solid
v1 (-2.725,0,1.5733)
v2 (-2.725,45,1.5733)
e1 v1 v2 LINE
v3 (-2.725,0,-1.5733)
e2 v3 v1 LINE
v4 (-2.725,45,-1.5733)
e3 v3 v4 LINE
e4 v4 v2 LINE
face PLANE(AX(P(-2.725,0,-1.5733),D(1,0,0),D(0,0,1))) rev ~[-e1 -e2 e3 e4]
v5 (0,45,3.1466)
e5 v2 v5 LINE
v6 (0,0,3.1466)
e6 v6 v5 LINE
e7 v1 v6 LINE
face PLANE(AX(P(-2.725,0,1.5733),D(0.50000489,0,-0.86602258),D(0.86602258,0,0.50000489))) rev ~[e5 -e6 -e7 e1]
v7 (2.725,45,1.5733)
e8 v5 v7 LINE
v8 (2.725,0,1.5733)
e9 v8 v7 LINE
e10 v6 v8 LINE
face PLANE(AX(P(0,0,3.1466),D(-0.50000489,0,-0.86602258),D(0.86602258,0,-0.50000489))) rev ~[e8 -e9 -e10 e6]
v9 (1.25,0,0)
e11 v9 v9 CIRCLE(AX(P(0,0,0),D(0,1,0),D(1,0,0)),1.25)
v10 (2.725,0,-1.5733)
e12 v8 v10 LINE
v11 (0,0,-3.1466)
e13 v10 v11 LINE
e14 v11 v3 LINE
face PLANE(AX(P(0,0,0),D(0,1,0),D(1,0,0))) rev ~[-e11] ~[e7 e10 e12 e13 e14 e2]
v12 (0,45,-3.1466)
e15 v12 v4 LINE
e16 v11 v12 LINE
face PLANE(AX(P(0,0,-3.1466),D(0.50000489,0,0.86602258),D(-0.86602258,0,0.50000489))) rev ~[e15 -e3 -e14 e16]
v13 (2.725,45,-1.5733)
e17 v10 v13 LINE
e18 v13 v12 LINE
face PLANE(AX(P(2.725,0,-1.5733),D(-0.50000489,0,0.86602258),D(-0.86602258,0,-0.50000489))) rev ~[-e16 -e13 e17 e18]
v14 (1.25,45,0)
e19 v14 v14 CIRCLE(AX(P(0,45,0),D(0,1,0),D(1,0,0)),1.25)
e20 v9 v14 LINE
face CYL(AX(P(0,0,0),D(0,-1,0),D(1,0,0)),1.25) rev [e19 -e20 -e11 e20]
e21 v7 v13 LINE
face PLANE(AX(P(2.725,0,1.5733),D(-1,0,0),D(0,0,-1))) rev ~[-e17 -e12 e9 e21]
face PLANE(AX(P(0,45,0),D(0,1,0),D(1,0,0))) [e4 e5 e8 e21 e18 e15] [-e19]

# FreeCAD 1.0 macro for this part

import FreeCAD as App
import Part
import Sketcher
from FreeCAD import Vector
Q = App.Units.Quantity

doc = App.newDocument("Part")
body = doc.addObject("PartDesign::Body", "Body")

# Sketch on XZ plane
sketch1 = doc.addObject("Sketcher::SketchObject", "Sketch")
body.addObject(sketch1)
sketch1.AttachmentSupport = (doc.XZ_Plane, [""])
sketch1.MapMode = "FlatFace"
sketch1.addGeometry([
    Part.LineSegment(Vector(2.7, 1.6, 0), Vector(2.7, -1.6, 0)),  # 0
    Part.LineSegment(Vector(2.7, -1.6, 0), Vector(0, -3.1, 0)),  # 1
    Part.LineSegment(Vector(0, -3.1, 0), Vector(-2.7, -1.6, 0)),  # 2
    Part.LineSegment(Vector(-2.7, -1.6, 0), Vector(-2.7, 1.6, 0)),  # 3
    Part.LineSegment(Vector(-2.7, 1.6, 0), Vector(0, 3.1, 0)),  # 4
    Part.LineSegment(Vector(0, 3.1, 0), Vector(2.7, 1.6, 0)),  # 5
    Part.Circle(Vector(0, 0, 0), Vector(0, 0, 1), 1.2),  # 6
], False)
sketch1.addConstraint([
    Sketcher.Constraint("Coincident", 0, 2, 1, 1),
    Sketcher.Constraint("Coincident", 1, 2, 2, 1),
    Sketcher.Constraint("Coincident", 2, 2, 3, 1),
    Sketcher.Constraint("Coincident", 3, 2, 4, 1),
    Sketcher.Constraint("Coincident", 4, 2, 5, 1),
    Sketcher.Constraint("Coincident", 5, 2, 0, 1),
    Sketcher.Constraint("Vertical", 0),
    Sketcher.Constraint("Vertical", 3),
    Sketcher.Constraint("Coincident", 6, 3, -1, 1),
    Sketcher.Constraint("Symmetric", 0, 2, 3, 2, -1, 1),
    Sketcher.Constraint("Symmetric", 1, 2, 4, 2, -1, 1),
    Sketcher.Constraint("PointOnObject", 1, 2, -2),
    Sketcher.Constraint("Parallel", 2, 5),
    Sketcher.Constraint("Horizontal", 0, 2, 2, 2),
    Sketcher.Constraint("Diameter", 6, Q("2.5 mm")),
    Sketcher.Constraint("Angle", 1, Q("-149.9997 deg")),
    Sketcher.Constraint("DistanceX", 2, 2, 0, 2, Q("5.45 mm")),
    Sketcher.Constraint("DistanceY", 1, 2, 3, 2, Q("4.72 mm")),
])
pad1 = doc.addObject("PartDesign::Pad", "Pad")
body.addObject(pad1)
pad1.Profile = sketch1
pad1.Length = 45
pad1.Reversed = True

doc.recompute()
